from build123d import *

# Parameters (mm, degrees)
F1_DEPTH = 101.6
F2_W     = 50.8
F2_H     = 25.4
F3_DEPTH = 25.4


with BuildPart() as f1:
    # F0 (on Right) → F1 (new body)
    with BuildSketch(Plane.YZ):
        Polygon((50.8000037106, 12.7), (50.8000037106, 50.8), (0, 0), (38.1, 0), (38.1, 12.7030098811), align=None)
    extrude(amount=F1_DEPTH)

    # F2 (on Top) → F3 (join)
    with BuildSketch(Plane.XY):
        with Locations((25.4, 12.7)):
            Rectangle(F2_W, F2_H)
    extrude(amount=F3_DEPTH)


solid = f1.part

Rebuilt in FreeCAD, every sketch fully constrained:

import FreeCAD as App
import Part
import Sketcher
from FreeCAD import Vector
Q = App.Units.Quantity


def add_polygon(sketch, points):
    """Adds a closed chain of lines whose ends are joined by coincident constraints."""
    first, n = sketch.GeometryCount, len(points)
    for a, b in zip(points, points[1:] + points[:1]):
        sketch.addGeometry(Part.LineSegment(App.Vector(*a, 0), App.Vector(*b, 0)), False)
    for i in range(n):
        sketch.addConstraint(Sketcher.Constraint("Coincident", first + i, 2, first + (i + 1) % n, 1))

doc = App.newDocument("Part")
body = doc.addObject("PartDesign::Body", "Body")

# Sketch on YZ plane
sketch1 = body.newObject("Sketcher::SketchObject", "Sketch")
sketch1.AttachmentSupport = (doc.getObject("YZ_Plane"), [""])
sketch1.MapMode = "FlatFace"
add_polygon(sketch1, [(51, 13), (51, 51), (0, 0), (38, 0), (38, 13)])  # lines 0-4
sketch1.addConstraint([
    Sketcher.Constraint("Vertical", 0),
    Sketcher.Constraint("Horizontal", 2),
    Sketcher.Constraint("Vertical", 3),
    Sketcher.Constraint("Coincident", 1, 2, -1, 1),
    Sketcher.Constraint("Equal", 2, 0),
    Sketcher.Constraint("DistanceX", 2, 1, 2, 2, Q("1.5 in")),
    Sketcher.Constraint("DistanceX", -1, 1, 0, 2, Q("2.0000001 in")),
    Sketcher.Constraint("DistanceY", -1, 1, 0, 2, Q("2 in")),
    Sketcher.Constraint("DistanceY", 3, 1, 3, 2, Q("12.70301 mm")),
])
pad1 = body.newObject("PartDesign::Pad", "Pad")
pad1.Profile = sketch1
pad1.Length = Q("4 in")

# Sketch on XY plane
sketch2 = body.newObject("Sketcher::SketchObject", "Sketch001")
sketch2.AttachmentSupport = (doc.getObject("XY_Plane"), [""])
sketch2.MapMode = "FlatFace"
add_polygon(sketch2, [(0, 25), (0, 0), (51, 0), (51, 25)])  # lines 0-3
sketch2.addConstraint([
    Sketcher.Constraint("Vertical", 0),
    Sketcher.Constraint("Horizontal", 1),
    Sketcher.Constraint("Vertical", 2),
    Sketcher.Constraint("Horizontal", 3),
    Sketcher.Constraint("Coincident", 0, 2, -1, 1),
    Sketcher.Constraint("DistanceX", 1, 1, 1, 2, Q("2 in")),
    Sketcher.Constraint("DistanceY", 0, 2, 0, 1, Q("1 in")),
])
pad2 = body.newObject("PartDesign::Pad", "Pad001")
pad2.Profile = sketch2
pad2.Length = Q("1 in")

doc.recompute()
